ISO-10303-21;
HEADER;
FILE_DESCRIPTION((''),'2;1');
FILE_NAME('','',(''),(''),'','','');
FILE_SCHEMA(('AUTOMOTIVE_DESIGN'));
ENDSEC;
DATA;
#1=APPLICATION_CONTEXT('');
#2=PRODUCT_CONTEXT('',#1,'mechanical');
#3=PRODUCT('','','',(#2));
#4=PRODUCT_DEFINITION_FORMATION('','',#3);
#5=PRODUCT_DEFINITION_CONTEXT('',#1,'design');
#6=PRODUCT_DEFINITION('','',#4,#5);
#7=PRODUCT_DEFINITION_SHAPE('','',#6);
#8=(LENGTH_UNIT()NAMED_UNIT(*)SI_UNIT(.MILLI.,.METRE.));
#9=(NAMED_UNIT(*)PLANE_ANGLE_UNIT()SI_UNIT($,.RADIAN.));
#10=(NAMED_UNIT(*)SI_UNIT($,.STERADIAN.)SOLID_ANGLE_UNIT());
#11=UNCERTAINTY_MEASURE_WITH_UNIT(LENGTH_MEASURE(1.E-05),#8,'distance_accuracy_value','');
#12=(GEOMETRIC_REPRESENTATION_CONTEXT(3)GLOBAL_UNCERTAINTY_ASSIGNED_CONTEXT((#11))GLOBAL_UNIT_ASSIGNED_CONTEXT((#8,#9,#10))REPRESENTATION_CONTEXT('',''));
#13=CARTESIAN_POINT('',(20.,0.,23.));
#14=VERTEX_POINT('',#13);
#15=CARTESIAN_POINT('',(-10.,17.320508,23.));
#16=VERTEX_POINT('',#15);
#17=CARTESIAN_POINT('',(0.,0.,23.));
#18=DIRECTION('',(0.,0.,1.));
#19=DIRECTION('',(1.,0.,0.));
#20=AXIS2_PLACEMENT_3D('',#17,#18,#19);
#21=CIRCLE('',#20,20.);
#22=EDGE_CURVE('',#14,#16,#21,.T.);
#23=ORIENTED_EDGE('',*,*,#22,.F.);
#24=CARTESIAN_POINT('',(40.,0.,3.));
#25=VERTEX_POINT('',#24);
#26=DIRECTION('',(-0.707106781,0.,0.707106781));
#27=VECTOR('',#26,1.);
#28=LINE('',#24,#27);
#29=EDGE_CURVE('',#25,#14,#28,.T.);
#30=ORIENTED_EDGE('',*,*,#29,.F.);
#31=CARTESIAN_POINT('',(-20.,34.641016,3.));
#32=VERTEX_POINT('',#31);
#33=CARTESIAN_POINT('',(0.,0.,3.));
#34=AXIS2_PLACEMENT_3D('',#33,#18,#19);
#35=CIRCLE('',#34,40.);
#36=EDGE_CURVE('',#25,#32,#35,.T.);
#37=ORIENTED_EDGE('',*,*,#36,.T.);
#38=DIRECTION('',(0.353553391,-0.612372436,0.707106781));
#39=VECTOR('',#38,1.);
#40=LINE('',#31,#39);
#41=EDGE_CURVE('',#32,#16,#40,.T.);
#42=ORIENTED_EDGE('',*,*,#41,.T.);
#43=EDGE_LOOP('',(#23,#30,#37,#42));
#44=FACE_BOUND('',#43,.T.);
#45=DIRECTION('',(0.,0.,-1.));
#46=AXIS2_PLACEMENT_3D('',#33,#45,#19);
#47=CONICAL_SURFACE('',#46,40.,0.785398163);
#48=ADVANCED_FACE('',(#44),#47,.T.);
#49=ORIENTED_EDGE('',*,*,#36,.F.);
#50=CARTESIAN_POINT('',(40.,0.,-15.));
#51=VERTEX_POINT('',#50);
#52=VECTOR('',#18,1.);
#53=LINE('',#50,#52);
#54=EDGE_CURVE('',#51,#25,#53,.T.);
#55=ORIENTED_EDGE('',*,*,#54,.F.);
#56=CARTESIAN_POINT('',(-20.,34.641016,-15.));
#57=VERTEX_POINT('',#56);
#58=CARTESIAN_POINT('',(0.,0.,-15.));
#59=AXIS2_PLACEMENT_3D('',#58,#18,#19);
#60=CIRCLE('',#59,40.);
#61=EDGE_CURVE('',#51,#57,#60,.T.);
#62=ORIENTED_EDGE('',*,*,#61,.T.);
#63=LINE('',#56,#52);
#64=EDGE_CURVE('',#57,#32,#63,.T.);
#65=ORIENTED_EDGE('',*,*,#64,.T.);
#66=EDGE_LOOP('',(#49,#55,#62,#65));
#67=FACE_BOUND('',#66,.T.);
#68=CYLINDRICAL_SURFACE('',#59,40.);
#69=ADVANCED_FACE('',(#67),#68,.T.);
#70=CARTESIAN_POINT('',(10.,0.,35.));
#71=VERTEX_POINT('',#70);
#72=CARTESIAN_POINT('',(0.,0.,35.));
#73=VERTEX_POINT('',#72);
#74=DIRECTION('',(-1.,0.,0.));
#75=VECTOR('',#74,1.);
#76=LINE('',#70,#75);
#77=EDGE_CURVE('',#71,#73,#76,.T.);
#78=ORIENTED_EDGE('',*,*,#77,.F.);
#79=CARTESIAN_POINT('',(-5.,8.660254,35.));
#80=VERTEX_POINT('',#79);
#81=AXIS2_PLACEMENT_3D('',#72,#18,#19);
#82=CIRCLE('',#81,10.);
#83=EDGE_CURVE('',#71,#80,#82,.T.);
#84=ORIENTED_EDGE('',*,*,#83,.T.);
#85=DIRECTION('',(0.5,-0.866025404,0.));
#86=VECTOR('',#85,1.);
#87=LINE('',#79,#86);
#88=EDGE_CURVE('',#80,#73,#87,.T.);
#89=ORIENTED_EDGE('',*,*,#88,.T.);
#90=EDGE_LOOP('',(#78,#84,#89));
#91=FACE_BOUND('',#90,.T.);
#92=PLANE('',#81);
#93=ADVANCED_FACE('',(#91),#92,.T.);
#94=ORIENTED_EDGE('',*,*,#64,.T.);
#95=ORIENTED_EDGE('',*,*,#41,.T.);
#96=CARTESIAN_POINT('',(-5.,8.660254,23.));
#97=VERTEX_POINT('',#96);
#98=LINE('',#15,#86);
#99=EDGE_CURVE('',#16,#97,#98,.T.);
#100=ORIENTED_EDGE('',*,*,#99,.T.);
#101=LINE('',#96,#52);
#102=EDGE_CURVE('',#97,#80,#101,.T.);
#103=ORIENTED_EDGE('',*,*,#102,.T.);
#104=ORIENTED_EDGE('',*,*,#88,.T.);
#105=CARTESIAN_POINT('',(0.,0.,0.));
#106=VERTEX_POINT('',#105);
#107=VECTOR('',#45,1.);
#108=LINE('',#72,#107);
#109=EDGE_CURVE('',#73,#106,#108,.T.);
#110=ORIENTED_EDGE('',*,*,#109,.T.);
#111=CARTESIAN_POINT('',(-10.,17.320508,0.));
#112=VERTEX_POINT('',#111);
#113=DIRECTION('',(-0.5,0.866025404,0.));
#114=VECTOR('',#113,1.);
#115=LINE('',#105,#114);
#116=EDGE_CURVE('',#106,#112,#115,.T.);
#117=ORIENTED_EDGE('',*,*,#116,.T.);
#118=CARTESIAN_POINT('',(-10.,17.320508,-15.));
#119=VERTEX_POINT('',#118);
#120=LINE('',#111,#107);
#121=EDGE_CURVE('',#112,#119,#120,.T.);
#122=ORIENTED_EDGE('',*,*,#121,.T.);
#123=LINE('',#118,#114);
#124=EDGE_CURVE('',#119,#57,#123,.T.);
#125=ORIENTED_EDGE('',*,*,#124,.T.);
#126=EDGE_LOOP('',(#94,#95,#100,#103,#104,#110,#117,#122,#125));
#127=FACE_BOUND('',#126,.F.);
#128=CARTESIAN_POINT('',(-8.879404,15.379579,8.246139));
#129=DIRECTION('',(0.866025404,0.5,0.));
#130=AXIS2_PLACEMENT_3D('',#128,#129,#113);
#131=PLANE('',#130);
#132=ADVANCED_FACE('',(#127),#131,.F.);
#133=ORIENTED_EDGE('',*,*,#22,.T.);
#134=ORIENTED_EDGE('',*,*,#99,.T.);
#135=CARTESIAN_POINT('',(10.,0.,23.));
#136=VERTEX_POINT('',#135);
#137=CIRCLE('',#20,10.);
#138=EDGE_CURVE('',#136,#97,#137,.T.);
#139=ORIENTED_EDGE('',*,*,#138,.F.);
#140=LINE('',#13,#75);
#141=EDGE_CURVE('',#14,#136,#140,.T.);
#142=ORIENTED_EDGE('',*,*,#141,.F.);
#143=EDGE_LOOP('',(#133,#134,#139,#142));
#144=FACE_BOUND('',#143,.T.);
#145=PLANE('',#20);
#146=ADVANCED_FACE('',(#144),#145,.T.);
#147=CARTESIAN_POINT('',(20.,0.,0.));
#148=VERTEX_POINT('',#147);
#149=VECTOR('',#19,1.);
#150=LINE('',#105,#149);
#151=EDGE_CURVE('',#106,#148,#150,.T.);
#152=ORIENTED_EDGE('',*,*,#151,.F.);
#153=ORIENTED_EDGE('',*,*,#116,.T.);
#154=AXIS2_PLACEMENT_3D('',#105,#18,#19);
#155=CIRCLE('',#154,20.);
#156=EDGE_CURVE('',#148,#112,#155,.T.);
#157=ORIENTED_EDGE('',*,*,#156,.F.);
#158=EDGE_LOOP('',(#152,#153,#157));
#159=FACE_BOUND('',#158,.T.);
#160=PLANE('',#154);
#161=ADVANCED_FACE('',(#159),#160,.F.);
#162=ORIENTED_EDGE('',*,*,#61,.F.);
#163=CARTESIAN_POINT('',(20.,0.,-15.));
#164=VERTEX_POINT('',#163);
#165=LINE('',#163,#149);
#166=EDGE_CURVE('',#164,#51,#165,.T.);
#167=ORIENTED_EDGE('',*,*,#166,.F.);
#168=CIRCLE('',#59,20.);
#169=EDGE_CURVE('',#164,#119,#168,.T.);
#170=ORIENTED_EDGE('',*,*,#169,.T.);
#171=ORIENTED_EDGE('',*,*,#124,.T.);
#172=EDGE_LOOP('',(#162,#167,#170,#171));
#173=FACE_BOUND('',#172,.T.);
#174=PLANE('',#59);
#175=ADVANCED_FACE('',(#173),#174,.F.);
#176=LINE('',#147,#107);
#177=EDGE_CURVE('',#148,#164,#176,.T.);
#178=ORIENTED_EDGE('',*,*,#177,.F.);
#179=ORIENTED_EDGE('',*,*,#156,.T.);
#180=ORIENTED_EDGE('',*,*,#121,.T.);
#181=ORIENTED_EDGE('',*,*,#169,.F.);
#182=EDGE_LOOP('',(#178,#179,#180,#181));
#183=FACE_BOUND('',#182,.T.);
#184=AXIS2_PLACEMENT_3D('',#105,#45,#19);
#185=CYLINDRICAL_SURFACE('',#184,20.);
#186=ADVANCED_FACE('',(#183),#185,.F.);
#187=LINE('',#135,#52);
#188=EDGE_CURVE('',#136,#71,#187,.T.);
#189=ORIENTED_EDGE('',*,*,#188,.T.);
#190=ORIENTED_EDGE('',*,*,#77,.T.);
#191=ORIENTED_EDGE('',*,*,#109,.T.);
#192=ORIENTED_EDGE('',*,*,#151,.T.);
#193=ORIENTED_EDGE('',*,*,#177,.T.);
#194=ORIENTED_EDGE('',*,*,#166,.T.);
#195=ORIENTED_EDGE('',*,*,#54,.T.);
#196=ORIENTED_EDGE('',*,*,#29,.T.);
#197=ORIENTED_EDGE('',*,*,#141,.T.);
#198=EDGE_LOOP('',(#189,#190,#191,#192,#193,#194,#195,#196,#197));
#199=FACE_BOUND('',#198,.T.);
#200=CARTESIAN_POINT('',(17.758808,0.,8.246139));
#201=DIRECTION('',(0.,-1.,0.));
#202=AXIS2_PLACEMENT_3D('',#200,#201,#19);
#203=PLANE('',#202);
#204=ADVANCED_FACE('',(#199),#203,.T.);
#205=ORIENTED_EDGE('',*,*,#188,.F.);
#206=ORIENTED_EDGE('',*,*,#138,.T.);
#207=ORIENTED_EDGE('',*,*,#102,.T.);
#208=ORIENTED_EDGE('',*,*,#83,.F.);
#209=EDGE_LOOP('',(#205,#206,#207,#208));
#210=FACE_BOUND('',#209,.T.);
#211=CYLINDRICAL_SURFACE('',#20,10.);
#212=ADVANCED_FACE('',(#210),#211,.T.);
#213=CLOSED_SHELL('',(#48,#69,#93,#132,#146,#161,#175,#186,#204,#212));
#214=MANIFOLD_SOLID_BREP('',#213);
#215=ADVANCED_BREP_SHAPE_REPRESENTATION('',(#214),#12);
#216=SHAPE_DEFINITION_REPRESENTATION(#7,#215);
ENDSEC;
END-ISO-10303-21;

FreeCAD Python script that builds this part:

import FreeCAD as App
import Part
import Sketcher
from FreeCAD import Vector

doc = App.newDocument("Part")
body = doc.addObject("PartDesign::Body", "Body")

sketch1 = body.newObject("Sketcher::SketchObject", "Sketch")
sketch1.AttachmentSupport = (doc.getObject("XZ_Plane"), [""])
sketch1.MapMode = "FlatFace"
sketch1.addGeometry(Part.LineSegment(Vector(0, 35, 0), Vector(0, 0, 0)), False)
sketch1.addGeometry(Part.LineSegment(Vector(0, 0, 0), Vector(20, 0, 0)), False)
sketch1.addGeometry(Part.LineSegment(Vector(20, 0, 0), Vector(20, -15, 0)), False)
sketch1.addGeometry(Part.LineSegment(Vector(20, -15, 0), Vector(40, -15, 0)), False)
sketch1.addGeometry(Part.LineSegment(Vector(40, -15, 0), Vector(40, 3, 0)), False)
sketch1.addGeometry(Part.LineSegment(Vector(40, 3, 0), Vector(20, 23, 0)), False)
sketch1.addGeometry(Part.LineSegment(Vector(20, 23, 0), Vector(10, 23, 0)), False)
sketch1.addGeometry(Part.LineSegment(Vector(10, 23, 0), Vector(10, 35, 0)), False)
sketch1.addGeometry(Part.LineSegment(Vector(10, 35, 0), Vector(0, 35, 0)), False)
sketch1.addConstraint(Sketcher.Constraint("Coincident", 0, 2, 1, 1))
sketch1.addConstraint(Sketcher.Constraint("Coincident", 1, 2, 2, 1))
sketch1.addConstraint(Sketcher.Constraint("Coincident", 2, 2, 3, 1))
sketch1.addConstraint(Sketcher.Constraint("Coincident", 3, 2, 4, 1))
sketch1.addConstraint(Sketcher.Constraint("Coincident", 4, 2, 5, 1))
sketch1.addConstraint(Sketcher.Constraint("Coincident", 5, 2, 6, 1))
sketch1.addConstraint(Sketcher.Constraint("Coincident", 6, 2, 7, 1))
sketch1.addConstraint(Sketcher.Constraint("Coincident", 7, 2, 8, 1))
sketch1.addConstraint(Sketcher.Constraint("Coincident", 8, 2, 0, 1))
sketch1.addConstraint(Sketcher.Constraint("Vertical", 0))
sketch1.addConstraint(Sketcher.Constraint("Horizontal", 1))
sketch1.addConstraint(Sketcher.Constraint("Vertical", 2))
sketch1.addConstraint(Sketcher.Constraint("Horizontal", 3))
sketch1.addConstraint(Sketcher.Constraint("Vertical", 4))
sketch1.addConstraint(Sketcher.Constraint("Horizontal", 6))
sketch1.addConstraint(Sketcher.Constraint("Vertical", 7))
sketch1.addConstraint(Sketcher.Constraint("Horizontal", 8))
sketch1.addConstraint(Sketcher.Constraint("Coincident", 0, 2, -1, 1))
sketch1.addConstraint(Sketcher.Constraint("Vertical", 2, 2, 5, 2))
sketch1.addConstraint(Sketcher.Constraint("Equal", 1, 3))
sketch1.addConstraint(Sketcher.Constraint("Equal", 6, 8))
sketch1.addConstraint(Sketcher.Constraint("DistanceX", 1, 1, 1, 2, 20.0))
sketch1.addConstraint(Sketcher.Constraint("DistanceY", 0, 2, 0, 1, 35.0))
sketch1.addConstraint(Sketcher.Constraint("DistanceY", 2, 2, 2, 1, 15.0))
sketch1.addConstraint(Sketcher.Constraint("DistanceY", 4, 1, 4, 2, 18.0))
sketch1.addConstraint(Sketcher.Constraint("DistanceY", 7, 1, 7, 2, 12.0))
revolution = body.newObject("PartDesign::Revolution", "Revolution")
revolution.Profile = sketch1
revolution.ReferenceAxis = (sketch1, ["V_Axis"])
revolution.Angle = 120

doc.recompute()
